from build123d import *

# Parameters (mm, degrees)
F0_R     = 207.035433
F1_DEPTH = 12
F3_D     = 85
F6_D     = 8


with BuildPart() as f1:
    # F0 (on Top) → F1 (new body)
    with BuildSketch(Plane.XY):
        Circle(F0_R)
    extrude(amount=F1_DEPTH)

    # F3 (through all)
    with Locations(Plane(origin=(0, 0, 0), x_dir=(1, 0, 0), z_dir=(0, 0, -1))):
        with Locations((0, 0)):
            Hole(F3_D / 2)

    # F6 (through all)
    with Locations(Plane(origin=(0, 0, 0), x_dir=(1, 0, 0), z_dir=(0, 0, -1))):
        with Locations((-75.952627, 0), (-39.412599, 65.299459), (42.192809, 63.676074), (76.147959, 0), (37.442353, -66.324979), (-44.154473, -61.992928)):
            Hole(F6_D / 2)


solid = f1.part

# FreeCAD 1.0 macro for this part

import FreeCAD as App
import Part
import Sketcher
Q = App.Units.Quantity

doc = App.newDocument("Part")
body = doc.addObject("PartDesign::Body", "Body")

sketch1 = body.newObject("Sketcher::SketchObject", "Sketch")
sketch1.AttachmentSupport = (doc.getObject("XY_Plane"), [""])
sketch1.MapMode = "FlatFace"
sketch1.addGeometry(Part.Circle(App.Vector(0, 0, 0), App.Vector(0, 0, 1), 207), False)
sketch1.addConstraint([
    Sketcher.Constraint("Coincident", 0, 3, -1, 1),
    Sketcher.Constraint("Diameter", 0, Q("414.070866 mm")),
])
pad1 = body.newObject("PartDesign::Pad", "Pad")
pad1.Profile = sketch1
pad1.Length = 12

sketch2 = body.newObject("Sketcher::SketchObject", "Sketch001")
sketch2.AttachmentSupport = (doc.getObject("XY_Plane"), [""])
sketch2.MapMode = "FlatFace"
sketch2.addGeometry(Part.Circle(App.Vector(0, 0, 0), App.Vector(0, 0, 1), 42), False)
sketch2.addConstraint([
    Sketcher.Constraint("Coincident", 0, 3, -1, 1),
    Sketcher.Constraint("Diameter", 0, Q("85 mm")),
])
doc.recompute()
hole = body.newObject("PartDesign::Hole", "Hole")
hole.Profile = sketch2
hole.ThreadType = "None"
hole.Diameter = 85
hole.DepthType = "ThroughAll"
hole.Reversed = True

sketch3 = body.newObject("Sketcher::SketchObject", "Sketch002")
sketch3.AttachmentSupport = (doc.getObject("XY_Plane"), [""])
sketch3.MapMode = "FlatFace"
sketch3.addGeometry([
    Part.Circle(App.Vector(-76, 0, 0), App.Vector(0, 0, 1), 4),
    Part.Circle(App.Vector(-39.4, -65.3, 0), App.Vector(0, 0, 1), 4),
    Part.Circle(App.Vector(42.2, -63.7, 0), App.Vector(0, 0, 1), 4),
    Part.Circle(App.Vector(76.1, 0, 0), App.Vector(0, 0, 1), 4),
    Part.Circle(App.Vector(37.4, 66.3, 0), App.Vector(0, 0, 1), 4),
    Part.Circle(App.Vector(-44.2, 62, 0), App.Vector(0, 0, 1), 4),
], False)
sketch3.addConstraint([
    Sketcher.Constraint("Equal", 0, 1),
    Sketcher.Constraint("Equal", 1, 2),
    Sketcher.Constraint("Equal", 2, 3),
    Sketcher.Constraint("Equal", 3, 4),
    Sketcher.Constraint("Equal", 4, 5),
    Sketcher.Constraint("PointOnObject", 0, 3, -1),
    Sketcher.Constraint("PointOnObject", 3, 3, -1),
    Sketcher.Constraint("Diameter", 0, Q("8 mm")),
    Sketcher.Constraint("DistanceX", 1, 3, -1, 1, Q("39.412599 mm")),
    Sketcher.Constraint("DistanceY", 1, 3, -1, 1, Q("65.299459 mm")),
    Sketcher.Constraint("DistanceX", -1, 1, 2, 3, Q("42.192809 mm")),
    Sketcher.Constraint("DistanceX", -1, 1, 3, 3, Q("76.147959 mm")),
    Sketcher.Constraint("DistanceY", -1, 1, 4, 3, Q("66.324979 mm")),
    Sketcher.Constraint("DistanceX", 0, 3, 1, 3, Q("36.540028 mm")),
    Sketcher.Constraint("DistanceX", 0, 3, 4, 3, Q("113.39498 mm")),
    Sketcher.Constraint("DistanceY", 5, 3, 4, 3, Q("4.332051 mm")),
    Sketcher.Constraint("DistanceY", 2, 3, -1, 1, Q("63.676074 mm")),
    Sketcher.Constraint("DistanceX", 5, 3, -1, 1, Q("44.154473 mm")),
])
doc.recompute()
hole2 = body.newObject("PartDesign::Hole", "Hole001")
hole2.Profile = sketch3
hole2.ThreadType = "None"
hole2.Diameter = 8
hole2.DepthType = "ThroughAll"
hole2.Reversed = True

doc.recompute()
